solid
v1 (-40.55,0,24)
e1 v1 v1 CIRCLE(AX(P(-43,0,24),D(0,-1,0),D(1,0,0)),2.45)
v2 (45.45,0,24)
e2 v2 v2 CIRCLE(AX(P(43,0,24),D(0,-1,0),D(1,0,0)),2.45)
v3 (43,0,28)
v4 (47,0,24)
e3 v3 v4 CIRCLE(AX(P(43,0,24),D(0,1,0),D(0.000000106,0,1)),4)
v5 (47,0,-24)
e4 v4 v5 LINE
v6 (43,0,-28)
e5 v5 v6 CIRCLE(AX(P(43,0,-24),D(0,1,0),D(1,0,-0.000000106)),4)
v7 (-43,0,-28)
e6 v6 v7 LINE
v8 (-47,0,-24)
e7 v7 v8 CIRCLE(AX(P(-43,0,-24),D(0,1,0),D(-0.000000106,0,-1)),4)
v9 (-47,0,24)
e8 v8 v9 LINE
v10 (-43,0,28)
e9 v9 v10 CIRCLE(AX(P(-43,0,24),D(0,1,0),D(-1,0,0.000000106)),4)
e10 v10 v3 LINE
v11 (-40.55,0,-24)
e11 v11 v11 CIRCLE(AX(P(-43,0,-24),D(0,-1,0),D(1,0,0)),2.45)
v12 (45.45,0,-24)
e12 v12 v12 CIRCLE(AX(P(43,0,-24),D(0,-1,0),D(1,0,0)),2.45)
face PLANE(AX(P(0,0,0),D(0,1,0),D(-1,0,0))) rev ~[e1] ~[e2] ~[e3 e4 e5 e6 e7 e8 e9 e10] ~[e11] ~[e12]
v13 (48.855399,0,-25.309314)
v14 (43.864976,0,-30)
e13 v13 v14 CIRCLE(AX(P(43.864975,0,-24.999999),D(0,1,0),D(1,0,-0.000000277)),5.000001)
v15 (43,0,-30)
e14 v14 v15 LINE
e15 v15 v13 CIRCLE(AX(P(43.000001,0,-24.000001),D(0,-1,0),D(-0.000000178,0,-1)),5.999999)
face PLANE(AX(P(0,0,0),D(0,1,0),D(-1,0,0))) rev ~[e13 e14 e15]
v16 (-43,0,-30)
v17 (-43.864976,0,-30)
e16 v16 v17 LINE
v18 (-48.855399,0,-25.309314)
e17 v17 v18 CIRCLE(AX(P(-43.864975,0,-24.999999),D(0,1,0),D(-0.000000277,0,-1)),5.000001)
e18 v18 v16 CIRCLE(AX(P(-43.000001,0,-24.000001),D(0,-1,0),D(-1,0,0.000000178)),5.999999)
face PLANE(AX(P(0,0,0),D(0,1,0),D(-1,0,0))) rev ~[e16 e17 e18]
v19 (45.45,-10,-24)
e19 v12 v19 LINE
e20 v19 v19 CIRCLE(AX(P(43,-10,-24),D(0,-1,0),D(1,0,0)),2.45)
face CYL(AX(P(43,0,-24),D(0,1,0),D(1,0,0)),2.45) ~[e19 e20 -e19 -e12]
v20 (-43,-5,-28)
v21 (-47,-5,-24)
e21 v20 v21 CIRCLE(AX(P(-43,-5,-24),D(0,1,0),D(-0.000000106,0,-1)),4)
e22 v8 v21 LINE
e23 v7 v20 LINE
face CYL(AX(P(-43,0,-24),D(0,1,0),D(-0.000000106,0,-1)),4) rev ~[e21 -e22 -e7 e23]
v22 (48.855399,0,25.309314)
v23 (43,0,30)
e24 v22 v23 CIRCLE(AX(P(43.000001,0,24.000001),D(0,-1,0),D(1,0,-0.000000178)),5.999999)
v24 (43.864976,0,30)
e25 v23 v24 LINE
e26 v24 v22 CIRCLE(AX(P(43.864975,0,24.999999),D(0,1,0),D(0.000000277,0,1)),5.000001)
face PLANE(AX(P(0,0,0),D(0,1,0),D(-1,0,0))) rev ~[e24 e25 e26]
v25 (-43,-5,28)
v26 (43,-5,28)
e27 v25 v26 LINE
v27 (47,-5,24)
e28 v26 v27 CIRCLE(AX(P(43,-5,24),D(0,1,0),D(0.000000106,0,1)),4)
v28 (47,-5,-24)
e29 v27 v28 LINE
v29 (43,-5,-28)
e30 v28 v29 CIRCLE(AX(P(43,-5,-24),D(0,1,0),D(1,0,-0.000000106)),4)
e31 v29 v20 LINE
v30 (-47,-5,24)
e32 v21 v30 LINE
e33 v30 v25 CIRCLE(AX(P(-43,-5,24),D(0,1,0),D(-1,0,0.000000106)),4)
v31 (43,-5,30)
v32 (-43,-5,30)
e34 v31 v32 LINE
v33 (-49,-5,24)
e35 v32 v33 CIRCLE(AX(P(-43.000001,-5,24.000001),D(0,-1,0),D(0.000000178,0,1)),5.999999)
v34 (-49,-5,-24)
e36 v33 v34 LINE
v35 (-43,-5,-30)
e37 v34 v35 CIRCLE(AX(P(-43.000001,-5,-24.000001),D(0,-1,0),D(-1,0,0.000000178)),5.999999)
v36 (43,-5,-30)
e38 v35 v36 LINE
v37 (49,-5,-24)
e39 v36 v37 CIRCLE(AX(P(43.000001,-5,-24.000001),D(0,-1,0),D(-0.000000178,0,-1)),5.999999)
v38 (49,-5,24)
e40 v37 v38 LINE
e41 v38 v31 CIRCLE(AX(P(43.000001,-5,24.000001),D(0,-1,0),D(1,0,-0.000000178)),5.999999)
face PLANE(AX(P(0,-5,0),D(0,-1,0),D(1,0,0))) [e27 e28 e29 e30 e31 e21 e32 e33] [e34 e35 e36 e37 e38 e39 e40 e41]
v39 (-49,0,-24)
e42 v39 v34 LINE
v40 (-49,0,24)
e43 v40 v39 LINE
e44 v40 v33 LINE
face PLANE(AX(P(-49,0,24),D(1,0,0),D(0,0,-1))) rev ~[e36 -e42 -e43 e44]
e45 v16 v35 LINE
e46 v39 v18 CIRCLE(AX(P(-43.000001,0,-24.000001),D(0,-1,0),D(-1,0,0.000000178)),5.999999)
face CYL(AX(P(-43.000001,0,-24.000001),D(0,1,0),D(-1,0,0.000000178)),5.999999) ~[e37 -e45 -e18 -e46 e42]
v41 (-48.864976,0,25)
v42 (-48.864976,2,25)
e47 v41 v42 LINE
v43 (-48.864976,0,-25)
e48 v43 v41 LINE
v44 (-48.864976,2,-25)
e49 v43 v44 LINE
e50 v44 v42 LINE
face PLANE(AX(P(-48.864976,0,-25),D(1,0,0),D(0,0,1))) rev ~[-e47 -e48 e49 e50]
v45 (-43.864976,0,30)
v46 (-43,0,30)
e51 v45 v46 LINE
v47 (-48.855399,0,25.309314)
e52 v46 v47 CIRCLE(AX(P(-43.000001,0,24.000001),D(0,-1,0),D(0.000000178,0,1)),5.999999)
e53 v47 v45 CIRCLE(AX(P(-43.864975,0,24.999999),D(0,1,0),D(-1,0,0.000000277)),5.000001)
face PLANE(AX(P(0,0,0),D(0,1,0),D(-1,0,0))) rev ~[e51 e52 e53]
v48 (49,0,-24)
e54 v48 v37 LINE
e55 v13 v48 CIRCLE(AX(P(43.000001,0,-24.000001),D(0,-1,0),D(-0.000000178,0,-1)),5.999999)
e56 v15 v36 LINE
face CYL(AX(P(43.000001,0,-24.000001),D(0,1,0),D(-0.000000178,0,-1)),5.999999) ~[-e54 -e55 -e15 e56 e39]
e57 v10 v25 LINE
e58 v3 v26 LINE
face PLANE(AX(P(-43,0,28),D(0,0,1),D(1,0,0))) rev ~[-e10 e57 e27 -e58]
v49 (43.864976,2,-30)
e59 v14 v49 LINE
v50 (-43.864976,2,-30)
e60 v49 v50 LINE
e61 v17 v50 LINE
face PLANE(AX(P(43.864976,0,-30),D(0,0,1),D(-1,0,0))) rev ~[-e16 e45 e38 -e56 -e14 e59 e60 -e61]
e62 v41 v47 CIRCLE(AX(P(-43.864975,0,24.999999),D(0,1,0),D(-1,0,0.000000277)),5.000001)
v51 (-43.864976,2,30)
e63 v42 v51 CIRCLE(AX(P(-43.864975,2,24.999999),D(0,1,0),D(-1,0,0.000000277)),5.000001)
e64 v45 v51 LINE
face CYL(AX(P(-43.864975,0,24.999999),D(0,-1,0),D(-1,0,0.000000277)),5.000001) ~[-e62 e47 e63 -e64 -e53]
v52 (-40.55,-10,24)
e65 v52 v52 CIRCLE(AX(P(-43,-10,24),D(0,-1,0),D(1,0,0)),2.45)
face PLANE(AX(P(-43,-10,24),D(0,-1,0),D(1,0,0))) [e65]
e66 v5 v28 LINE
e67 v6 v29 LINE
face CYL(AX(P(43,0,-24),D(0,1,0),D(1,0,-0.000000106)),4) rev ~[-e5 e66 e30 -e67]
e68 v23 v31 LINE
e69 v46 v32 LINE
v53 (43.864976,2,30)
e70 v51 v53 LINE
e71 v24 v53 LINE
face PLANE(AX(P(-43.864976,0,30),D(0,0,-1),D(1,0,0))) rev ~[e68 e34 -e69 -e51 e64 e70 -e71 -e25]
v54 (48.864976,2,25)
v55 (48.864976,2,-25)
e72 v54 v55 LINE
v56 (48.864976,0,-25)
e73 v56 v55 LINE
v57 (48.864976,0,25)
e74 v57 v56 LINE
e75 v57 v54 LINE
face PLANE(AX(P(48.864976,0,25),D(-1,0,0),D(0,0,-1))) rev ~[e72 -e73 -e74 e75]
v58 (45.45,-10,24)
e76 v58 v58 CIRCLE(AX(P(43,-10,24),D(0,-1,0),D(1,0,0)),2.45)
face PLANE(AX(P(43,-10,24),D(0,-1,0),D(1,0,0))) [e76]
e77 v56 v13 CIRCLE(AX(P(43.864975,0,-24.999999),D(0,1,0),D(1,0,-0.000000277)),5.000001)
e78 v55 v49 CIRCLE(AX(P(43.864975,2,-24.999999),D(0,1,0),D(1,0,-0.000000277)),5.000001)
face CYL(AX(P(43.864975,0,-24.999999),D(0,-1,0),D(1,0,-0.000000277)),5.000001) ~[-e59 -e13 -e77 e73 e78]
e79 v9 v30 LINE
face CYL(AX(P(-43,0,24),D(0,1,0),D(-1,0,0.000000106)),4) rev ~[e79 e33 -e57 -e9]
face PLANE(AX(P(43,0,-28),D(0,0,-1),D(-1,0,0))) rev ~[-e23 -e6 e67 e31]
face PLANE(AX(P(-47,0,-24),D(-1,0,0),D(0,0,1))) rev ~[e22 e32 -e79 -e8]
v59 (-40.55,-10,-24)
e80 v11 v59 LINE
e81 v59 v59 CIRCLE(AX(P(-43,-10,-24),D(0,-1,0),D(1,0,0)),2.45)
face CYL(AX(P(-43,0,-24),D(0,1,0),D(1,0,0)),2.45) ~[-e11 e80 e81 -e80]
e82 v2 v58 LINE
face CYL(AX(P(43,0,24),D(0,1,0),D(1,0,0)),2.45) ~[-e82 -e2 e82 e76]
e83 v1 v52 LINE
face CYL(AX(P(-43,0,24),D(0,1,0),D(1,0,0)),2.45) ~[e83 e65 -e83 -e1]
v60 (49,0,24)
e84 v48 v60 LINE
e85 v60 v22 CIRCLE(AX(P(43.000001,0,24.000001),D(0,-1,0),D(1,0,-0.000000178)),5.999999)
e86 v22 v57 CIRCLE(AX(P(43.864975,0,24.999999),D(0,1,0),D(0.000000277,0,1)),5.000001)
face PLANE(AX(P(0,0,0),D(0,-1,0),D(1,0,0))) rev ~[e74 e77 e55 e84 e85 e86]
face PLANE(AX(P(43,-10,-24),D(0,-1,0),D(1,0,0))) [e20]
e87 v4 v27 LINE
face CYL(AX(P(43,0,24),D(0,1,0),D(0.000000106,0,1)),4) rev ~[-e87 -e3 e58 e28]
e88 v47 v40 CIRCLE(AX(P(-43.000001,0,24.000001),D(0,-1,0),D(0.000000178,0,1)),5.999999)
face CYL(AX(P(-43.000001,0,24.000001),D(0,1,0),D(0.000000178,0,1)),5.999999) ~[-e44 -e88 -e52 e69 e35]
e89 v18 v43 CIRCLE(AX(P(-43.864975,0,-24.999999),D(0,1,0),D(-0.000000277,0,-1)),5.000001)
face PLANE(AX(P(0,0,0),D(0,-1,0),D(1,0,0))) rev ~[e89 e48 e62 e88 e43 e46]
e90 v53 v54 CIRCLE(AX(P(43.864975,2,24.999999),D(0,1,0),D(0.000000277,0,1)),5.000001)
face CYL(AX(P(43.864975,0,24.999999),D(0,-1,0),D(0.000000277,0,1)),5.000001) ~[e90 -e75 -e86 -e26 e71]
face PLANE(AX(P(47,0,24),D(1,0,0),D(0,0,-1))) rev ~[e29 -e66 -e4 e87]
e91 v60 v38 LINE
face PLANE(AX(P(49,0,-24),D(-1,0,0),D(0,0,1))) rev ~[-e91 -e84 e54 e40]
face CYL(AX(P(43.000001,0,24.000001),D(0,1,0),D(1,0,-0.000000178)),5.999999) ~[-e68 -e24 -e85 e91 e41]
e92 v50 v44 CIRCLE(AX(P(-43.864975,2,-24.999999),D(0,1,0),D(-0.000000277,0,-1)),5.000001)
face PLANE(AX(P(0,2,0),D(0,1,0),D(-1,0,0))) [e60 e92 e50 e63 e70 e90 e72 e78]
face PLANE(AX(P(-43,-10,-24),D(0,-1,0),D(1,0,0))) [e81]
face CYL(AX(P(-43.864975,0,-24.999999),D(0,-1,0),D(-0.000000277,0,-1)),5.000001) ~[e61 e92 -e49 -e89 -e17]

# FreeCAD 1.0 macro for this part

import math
import FreeCAD as App
import Part
import Sketcher
Q = App.Units.Quantity

doc = App.newDocument("Part")
body = doc.addObject("PartDesign::Body", "Body")
body.AllowCompound = True

# Sketch on XZ plane
sketch1 = body.newObject("Sketcher::SketchObject", "Sketch")
sketch1.AttachmentSupport = (doc.getObject("XZ_Plane"), [""])
sketch1.MapMode = "FlatFace"
sketch1.addGeometry(Part.Circle(App.Vector(-43, 24, 0), App.Vector(0, 0, 1), 2.5), False)
sketch1.addGeometry(Part.Circle(App.Vector(-43, -24, 0), App.Vector(0, 0, 1), 2.5), False)
sketch1.addGeometry(Part.Circle(App.Vector(43, -24, 0), App.Vector(0, 0, 1), 2.5), False)
sketch1.addGeometry(Part.Circle(App.Vector(43, 24, 0), App.Vector(0, 0, 1), 2.5), False)
sketch1.addConstraint(Sketcher.Constraint("Equal", 0, 1))
sketch1.addConstraint(Sketcher.Constraint("Equal", 1, 2))
sketch1.addConstraint(Sketcher.Constraint("Equal", 2, 3))
sketch1.addConstraint(Sketcher.Constraint("Symmetric", 0, 3, 2, 3, -1, 1))
sketch1.addConstraint(Sketcher.Constraint("Symmetric", 1, 3, 3, 3, -1, 1))
sketch1.addConstraint(Sketcher.Constraint("Symmetric", 1, 3, 2, 3, -2))
sketch1.addConstraint(Sketcher.Constraint("Diameter", 0, Q("4.9 mm")))
sketch1.addConstraint(Sketcher.Constraint("DistanceX", 0, 3, -1, 1, Q("43 mm")))
sketch1.addConstraint(Sketcher.Constraint("DistanceY", -1, 1, 0, 3, Q("24 mm")))
pad1 = body.newObject("PartDesign::Pad", "Pad")
pad1.Profile = sketch1
pad1.Length = 10
body2 = doc.addObject("PartDesign::Body", "Body001")

# Sketch on XZ plane
sketch2 = body2.newObject("Sketcher::SketchObject", "Sketch001")
sketch2.AttachmentSupport = (doc.getObject("XZ_Plane001"), [""])
sketch2.MapMode = "FlatFace"
sketch2.addGeometry(Part.ArcOfCircle(Part.Circle(App.Vector(43, 24, 0), App.Vector(0, 0, 1), 6), math.radians(0), math.radians(90)), False)
sketch2.addGeometry(Part.LineSegment(App.Vector(43, 30, 0), App.Vector(-43, 30, 0)), False)
sketch2.addGeometry(Part.ArcOfCircle(Part.Circle(App.Vector(-43, 24, 0), App.Vector(0, 0, 1), 6), math.radians(90), math.radians(180)), False)
sketch2.addGeometry(Part.LineSegment(App.Vector(-49, 24, 0), App.Vector(-49, -24, 0)), False)
sketch2.addGeometry(Part.ArcOfCircle(Part.Circle(App.Vector(-43, -24, 0), App.Vector(0, 0, 1), 6), math.radians(180), math.radians(270)), False)
sketch2.addGeometry(Part.LineSegment(App.Vector(-43, -30, 0), App.Vector(43, -30, 0)), False)
sketch2.addGeometry(Part.ArcOfCircle(Part.Circle(App.Vector(43, -24, 0), App.Vector(0, 0, 1), 6), math.radians(-90), math.radians(0)), False)
sketch2.addGeometry(Part.LineSegment(App.Vector(49, -24, 0), App.Vector(49, 24, 0)), False)
sketch2.addGeometry(Part.LineSegment(App.Vector(47, 24, 0), App.Vector(47, -24, 0)), False)
sketch2.addGeometry(Part.ArcOfCircle(Part.Circle(App.Vector(43, -24, 0), App.Vector(0, 0, 1), 4), math.radians(-90), math.radians(0)), False)
sketch2.addGeometry(Part.LineSegment(App.Vector(43, -28, 0), App.Vector(-43, -28, 0)), False)
sketch2.addGeometry(Part.ArcOfCircle(Part.Circle(App.Vector(-43, -24, 0), App.Vector(0, 0, 1), 4), math.radians(-180), math.radians(-90)), False)
sketch2.addGeometry(Part.LineSegment(App.Vector(-47, -24, 0), App.Vector(-47, 24, 0)), False)
sketch2.addGeometry(Part.ArcOfCircle(Part.Circle(App.Vector(-43, 24, 0), App.Vector(0, 0, 1), 4), math.radians(90), math.radians(180)), False)
sketch2.addGeometry(Part.LineSegment(App.Vector(-43, 28, 0), App.Vector(43, 28, 0)), False)
sketch2.addGeometry(Part.ArcOfCircle(Part.Circle(App.Vector(43, 24, 0), App.Vector(0, 0, 1), 4), math.radians(0), math.radians(90)), False)
sketch2.addConstraint(Sketcher.Constraint("Tangent", 0, 2, 1, 1))
sketch2.addConstraint(Sketcher.Constraint("Tangent", 1, 2, 2, 1))
sketch2.addConstraint(Sketcher.Constraint("Tangent", 2, 2, 3, 1))
sketch2.addConstraint(Sketcher.Constraint("Tangent", 3, 2, 4, 1))
sketch2.addConstraint(Sketcher.Constraint("Tangent", 4, 2, 5, 1))
sketch2.addConstraint(Sketcher.Constraint("Tangent", 5, 2, 6, 1))
sketch2.addConstraint(Sketcher.Constraint("Tangent", 6, 2, 7, 1))
sketch2.addConstraint(Sketcher.Constraint("Tangent", 7, 2, 0, 1))
sketch2.addConstraint(Sketcher.Constraint("Tangent", 8, 2, 9, 2))
sketch2.addConstraint(Sketcher.Constraint("Tangent", 9, 1, 10, 1))
sketch2.addConstraint(Sketcher.Constraint("Tangent", 10, 2, 11, 2))
sketch2.addConstraint(Sketcher.Constraint("Tangent", 11, 1, 12, 1))
sketch2.addConstraint(Sketcher.Constraint("Tangent", 12, 2, 13, 2))
sketch2.addConstraint(Sketcher.Constraint("Tangent", 13, 1, 14, 1))
sketch2.addConstraint(Sketcher.Constraint("Tangent", 14, 2, 15, 2))
sketch2.addConstraint(Sketcher.Constraint("Tangent", 15, 1, 8, 1))
sketch2.addConstraint(Sketcher.Constraint("Horizontal", 1))
sketch2.addConstraint(Sketcher.Constraint("Vertical", 3))
sketch2.addConstraint(Sketcher.Constraint("Horizontal", 5))
sketch2.addConstraint(Sketcher.Constraint("Vertical", 7))
sketch2.addConstraint(Sketcher.Constraint("Vertical", 8))
sketch2.addConstraint(Sketcher.Constraint("Horizontal", 10))
sketch2.addConstraint(Sketcher.Constraint("Vertical", 12))
sketch2.addConstraint(Sketcher.Constraint("Horizontal", 14))
sketch2.addConstraint(Sketcher.Constraint("Coincident", 9, 3, 6, 3))
sketch2.addConstraint(Sketcher.Constraint("Coincident", 11, 3, 4, 3))
sketch2.addConstraint(Sketcher.Constraint("Coincident", 13, 3, 2, 3))
sketch2.addConstraint(Sketcher.Constraint("Equal", 0, 2))
sketch2.addConstraint(Sketcher.Constraint("Equal", 2, 4))
sketch2.addConstraint(Sketcher.Constraint("Equal", 4, 6))
sketch2.addConstraint(Sketcher.Constraint("Equal", 13, 15))
sketch2.addConstraint(Sketcher.Constraint("Symmetric", 0, 3, 4, 3, -1, 1))
sketch2.addConstraint(Sketcher.Constraint("Radius", 0, Q("5.999999 mm")))
sketch2.addConstraint(Sketcher.Constraint("Radius", 9, Q("4 mm")))
sketch2.addConstraint(Sketcher.Constraint("DistanceX", 1, 2, 1, 1, Q("86 mm")))
sketch2.addConstraint(Sketcher.Constraint("DistanceY", 3, 2, 3, 1, Q("48 mm")))
pad2 = body2.newObject("PartDesign::Pad", "Pad001")
pad2.Profile = sketch2
pad2.Length = 5
body.AllowCompound = True
doc.recompute()

boolean = body.newObject("PartDesign::Boolean", "Boolean")
boolean.Type = "Fuse"
boolean.addObjects([body2])

# Sketch on XZ plane
sketch3 = body.newObject("Sketcher::SketchObject", "Sketch002")
sketch3.AttachmentSupport = (doc.getObject("XZ_Plane"), [""])
sketch3.MapMode = "FlatFace"
sketch3.addGeometry(Part.LineSegment(App.Vector(-44, 30, 0), App.Vector(44, 30, 0)), False)
sketch3.addGeometry(Part.ArcOfCircle(Part.Circle(App.Vector(44, 25, 0), App.Vector(0, 0, 1), 5), math.radians(0), math.radians(90)), False)
sketch3.addGeometry(Part.LineSegment(App.Vector(49, 25, 0), App.Vector(49, -25, 0)), False)
sketch3.addGeometry(Part.ArcOfCircle(Part.Circle(App.Vector(44, -25, 0), App.Vector(0, 0, 1), 5), math.radians(-90), math.radians(0)), False)
sketch3.addGeometry(Part.LineSegment(App.Vector(44, -30, 0), App.Vector(-44, -30, 0)), False)
sketch3.addGeometry(Part.ArcOfCircle(Part.Circle(App.Vector(-44, -25, 0), App.Vector(0, 0, 1), 5), math.radians(-180), math.radians(-90)), False)
sketch3.addGeometry(Part.LineSegment(App.Vector(-49, -25, 0), App.Vector(-49, 25, 0)), False)
sketch3.addGeometry(Part.ArcOfCircle(Part.Circle(App.Vector(-44, 25, 0), App.Vector(0, 0, 1), 5), math.radians(90), math.radians(180)), False)
sketch3.addConstraint(Sketcher.Constraint("Tangent", 0, 2, 1, 2))
sketch3.addConstraint(Sketcher.Constraint("Tangent", 1, 1, 2, 1))
sketch3.addConstraint(Sketcher.Constraint("Tangent", 2, 2, 3, 2))
sketch3.addConstraint(Sketcher.Constraint("Tangent", 3, 1, 4, 1))
sketch3.addConstraint(Sketcher.Constraint("Tangent", 4, 2, 5, 2))
sketch3.addConstraint(Sketcher.Constraint("Tangent", 5, 1, 6, 1))
sketch3.addConstraint(Sketcher.Constraint("Tangent", 6, 2, 7, 2))
sketch3.addConstraint(Sketcher.Constraint("Tangent", 7, 1, 0, 1))
sketch3.addConstraint(Sketcher.Constraint("Horizontal", 0))
sketch3.addConstraint(Sketcher.Constraint("Vertical", 2))
sketch3.addConstraint(Sketcher.Constraint("Horizontal", 4))
sketch3.addConstraint(Sketcher.Constraint("Vertical", 6))
sketch3.addConstraint(Sketcher.Constraint("Equal", 1, 3))
sketch3.addConstraint(Sketcher.Constraint("Equal", 3, 5))
sketch3.addConstraint(Sketcher.Constraint("Equal", 5, 7))
sketch3.addConstraint(Sketcher.Constraint("Symmetric", 1, 3, 5, 3, -1, 1))
sketch3.addConstraint(Sketcher.Constraint("Radius", 1, Q("5.000001 mm")))
sketch3.addConstraint(Sketcher.Constraint("DistanceY", 2, 2, 2, 1, Q("50 mm")))
sketch3.addConstraint(Sketcher.Constraint("DistanceX", 0, 1, 0, 2, Q("87.729952 mm")))
pad3 = body.newObject("PartDesign::Pad", "Pad002")
pad3.Profile = sketch3
pad3.Length = 2
pad3.Reversed = True

doc.recompute()
